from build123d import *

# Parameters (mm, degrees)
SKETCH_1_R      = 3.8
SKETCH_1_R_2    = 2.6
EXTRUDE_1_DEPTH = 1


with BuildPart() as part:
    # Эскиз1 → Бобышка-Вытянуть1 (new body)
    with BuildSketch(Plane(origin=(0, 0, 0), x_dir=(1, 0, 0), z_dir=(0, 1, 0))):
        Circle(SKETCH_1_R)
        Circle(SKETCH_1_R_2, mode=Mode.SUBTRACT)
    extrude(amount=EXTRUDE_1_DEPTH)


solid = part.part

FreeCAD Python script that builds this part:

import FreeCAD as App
import Part
import Sketcher
from FreeCAD import Vector
Q = App.Units.Quantity

doc = App.newDocument("Part")
params = doc.addObject("Spreadsheet::Sheet", "Params")
for row, (alias, value) in enumerate([
    ("sketch1_diameter", "7.6 mm"),
    ("sketch1_diameter2", "5.2 mm"),
    ("pad1_length", "1 mm"),
], start=1):
    params.set(f"A{row}", alias)
    params.set(f"B{row}", "=" + value)
    params.setAlias(f"B{row}", alias)

body = doc.addObject("PartDesign::Body", "Body")

# Sketch on XZ plane
sketch1 = body.newObject("Sketcher::SketchObject", "Sketch")
sketch1.AttachmentSupport = (doc.getObject("XZ_Plane"), [""])
sketch1.MapMode = "FlatFace"
sketch1.addGeometry([
    Part.Circle(Vector(0, 0, 0), Vector(0, 0, 1), 3.8),
    Part.Circle(Vector(0, 0, 0), Vector(0, 0, 1), 2.6),
], False)
sketch1.addConstraint([
    Sketcher.Constraint("Coincident", 0, 3, -1, 1),
    Sketcher.Constraint("Coincident", 1, 3, -1, 1),
    Sketcher.Constraint("Diameter", 0, Q("7.6 mm")),
    Sketcher.Constraint("Diameter", 1, Q("5.2 mm")),
])
sketch1.setExpression("Constraints[2]", "Params.sketch1_diameter")
sketch1.setExpression("Constraints[3]", "Params.sketch1_diameter2")
pad1 = body.newObject("PartDesign::Pad", "Pad")
pad1.Profile = sketch1
pad1.setExpression("Length", "Params.pad1_length")
pad1.Reversed = True

doc.recompute()
